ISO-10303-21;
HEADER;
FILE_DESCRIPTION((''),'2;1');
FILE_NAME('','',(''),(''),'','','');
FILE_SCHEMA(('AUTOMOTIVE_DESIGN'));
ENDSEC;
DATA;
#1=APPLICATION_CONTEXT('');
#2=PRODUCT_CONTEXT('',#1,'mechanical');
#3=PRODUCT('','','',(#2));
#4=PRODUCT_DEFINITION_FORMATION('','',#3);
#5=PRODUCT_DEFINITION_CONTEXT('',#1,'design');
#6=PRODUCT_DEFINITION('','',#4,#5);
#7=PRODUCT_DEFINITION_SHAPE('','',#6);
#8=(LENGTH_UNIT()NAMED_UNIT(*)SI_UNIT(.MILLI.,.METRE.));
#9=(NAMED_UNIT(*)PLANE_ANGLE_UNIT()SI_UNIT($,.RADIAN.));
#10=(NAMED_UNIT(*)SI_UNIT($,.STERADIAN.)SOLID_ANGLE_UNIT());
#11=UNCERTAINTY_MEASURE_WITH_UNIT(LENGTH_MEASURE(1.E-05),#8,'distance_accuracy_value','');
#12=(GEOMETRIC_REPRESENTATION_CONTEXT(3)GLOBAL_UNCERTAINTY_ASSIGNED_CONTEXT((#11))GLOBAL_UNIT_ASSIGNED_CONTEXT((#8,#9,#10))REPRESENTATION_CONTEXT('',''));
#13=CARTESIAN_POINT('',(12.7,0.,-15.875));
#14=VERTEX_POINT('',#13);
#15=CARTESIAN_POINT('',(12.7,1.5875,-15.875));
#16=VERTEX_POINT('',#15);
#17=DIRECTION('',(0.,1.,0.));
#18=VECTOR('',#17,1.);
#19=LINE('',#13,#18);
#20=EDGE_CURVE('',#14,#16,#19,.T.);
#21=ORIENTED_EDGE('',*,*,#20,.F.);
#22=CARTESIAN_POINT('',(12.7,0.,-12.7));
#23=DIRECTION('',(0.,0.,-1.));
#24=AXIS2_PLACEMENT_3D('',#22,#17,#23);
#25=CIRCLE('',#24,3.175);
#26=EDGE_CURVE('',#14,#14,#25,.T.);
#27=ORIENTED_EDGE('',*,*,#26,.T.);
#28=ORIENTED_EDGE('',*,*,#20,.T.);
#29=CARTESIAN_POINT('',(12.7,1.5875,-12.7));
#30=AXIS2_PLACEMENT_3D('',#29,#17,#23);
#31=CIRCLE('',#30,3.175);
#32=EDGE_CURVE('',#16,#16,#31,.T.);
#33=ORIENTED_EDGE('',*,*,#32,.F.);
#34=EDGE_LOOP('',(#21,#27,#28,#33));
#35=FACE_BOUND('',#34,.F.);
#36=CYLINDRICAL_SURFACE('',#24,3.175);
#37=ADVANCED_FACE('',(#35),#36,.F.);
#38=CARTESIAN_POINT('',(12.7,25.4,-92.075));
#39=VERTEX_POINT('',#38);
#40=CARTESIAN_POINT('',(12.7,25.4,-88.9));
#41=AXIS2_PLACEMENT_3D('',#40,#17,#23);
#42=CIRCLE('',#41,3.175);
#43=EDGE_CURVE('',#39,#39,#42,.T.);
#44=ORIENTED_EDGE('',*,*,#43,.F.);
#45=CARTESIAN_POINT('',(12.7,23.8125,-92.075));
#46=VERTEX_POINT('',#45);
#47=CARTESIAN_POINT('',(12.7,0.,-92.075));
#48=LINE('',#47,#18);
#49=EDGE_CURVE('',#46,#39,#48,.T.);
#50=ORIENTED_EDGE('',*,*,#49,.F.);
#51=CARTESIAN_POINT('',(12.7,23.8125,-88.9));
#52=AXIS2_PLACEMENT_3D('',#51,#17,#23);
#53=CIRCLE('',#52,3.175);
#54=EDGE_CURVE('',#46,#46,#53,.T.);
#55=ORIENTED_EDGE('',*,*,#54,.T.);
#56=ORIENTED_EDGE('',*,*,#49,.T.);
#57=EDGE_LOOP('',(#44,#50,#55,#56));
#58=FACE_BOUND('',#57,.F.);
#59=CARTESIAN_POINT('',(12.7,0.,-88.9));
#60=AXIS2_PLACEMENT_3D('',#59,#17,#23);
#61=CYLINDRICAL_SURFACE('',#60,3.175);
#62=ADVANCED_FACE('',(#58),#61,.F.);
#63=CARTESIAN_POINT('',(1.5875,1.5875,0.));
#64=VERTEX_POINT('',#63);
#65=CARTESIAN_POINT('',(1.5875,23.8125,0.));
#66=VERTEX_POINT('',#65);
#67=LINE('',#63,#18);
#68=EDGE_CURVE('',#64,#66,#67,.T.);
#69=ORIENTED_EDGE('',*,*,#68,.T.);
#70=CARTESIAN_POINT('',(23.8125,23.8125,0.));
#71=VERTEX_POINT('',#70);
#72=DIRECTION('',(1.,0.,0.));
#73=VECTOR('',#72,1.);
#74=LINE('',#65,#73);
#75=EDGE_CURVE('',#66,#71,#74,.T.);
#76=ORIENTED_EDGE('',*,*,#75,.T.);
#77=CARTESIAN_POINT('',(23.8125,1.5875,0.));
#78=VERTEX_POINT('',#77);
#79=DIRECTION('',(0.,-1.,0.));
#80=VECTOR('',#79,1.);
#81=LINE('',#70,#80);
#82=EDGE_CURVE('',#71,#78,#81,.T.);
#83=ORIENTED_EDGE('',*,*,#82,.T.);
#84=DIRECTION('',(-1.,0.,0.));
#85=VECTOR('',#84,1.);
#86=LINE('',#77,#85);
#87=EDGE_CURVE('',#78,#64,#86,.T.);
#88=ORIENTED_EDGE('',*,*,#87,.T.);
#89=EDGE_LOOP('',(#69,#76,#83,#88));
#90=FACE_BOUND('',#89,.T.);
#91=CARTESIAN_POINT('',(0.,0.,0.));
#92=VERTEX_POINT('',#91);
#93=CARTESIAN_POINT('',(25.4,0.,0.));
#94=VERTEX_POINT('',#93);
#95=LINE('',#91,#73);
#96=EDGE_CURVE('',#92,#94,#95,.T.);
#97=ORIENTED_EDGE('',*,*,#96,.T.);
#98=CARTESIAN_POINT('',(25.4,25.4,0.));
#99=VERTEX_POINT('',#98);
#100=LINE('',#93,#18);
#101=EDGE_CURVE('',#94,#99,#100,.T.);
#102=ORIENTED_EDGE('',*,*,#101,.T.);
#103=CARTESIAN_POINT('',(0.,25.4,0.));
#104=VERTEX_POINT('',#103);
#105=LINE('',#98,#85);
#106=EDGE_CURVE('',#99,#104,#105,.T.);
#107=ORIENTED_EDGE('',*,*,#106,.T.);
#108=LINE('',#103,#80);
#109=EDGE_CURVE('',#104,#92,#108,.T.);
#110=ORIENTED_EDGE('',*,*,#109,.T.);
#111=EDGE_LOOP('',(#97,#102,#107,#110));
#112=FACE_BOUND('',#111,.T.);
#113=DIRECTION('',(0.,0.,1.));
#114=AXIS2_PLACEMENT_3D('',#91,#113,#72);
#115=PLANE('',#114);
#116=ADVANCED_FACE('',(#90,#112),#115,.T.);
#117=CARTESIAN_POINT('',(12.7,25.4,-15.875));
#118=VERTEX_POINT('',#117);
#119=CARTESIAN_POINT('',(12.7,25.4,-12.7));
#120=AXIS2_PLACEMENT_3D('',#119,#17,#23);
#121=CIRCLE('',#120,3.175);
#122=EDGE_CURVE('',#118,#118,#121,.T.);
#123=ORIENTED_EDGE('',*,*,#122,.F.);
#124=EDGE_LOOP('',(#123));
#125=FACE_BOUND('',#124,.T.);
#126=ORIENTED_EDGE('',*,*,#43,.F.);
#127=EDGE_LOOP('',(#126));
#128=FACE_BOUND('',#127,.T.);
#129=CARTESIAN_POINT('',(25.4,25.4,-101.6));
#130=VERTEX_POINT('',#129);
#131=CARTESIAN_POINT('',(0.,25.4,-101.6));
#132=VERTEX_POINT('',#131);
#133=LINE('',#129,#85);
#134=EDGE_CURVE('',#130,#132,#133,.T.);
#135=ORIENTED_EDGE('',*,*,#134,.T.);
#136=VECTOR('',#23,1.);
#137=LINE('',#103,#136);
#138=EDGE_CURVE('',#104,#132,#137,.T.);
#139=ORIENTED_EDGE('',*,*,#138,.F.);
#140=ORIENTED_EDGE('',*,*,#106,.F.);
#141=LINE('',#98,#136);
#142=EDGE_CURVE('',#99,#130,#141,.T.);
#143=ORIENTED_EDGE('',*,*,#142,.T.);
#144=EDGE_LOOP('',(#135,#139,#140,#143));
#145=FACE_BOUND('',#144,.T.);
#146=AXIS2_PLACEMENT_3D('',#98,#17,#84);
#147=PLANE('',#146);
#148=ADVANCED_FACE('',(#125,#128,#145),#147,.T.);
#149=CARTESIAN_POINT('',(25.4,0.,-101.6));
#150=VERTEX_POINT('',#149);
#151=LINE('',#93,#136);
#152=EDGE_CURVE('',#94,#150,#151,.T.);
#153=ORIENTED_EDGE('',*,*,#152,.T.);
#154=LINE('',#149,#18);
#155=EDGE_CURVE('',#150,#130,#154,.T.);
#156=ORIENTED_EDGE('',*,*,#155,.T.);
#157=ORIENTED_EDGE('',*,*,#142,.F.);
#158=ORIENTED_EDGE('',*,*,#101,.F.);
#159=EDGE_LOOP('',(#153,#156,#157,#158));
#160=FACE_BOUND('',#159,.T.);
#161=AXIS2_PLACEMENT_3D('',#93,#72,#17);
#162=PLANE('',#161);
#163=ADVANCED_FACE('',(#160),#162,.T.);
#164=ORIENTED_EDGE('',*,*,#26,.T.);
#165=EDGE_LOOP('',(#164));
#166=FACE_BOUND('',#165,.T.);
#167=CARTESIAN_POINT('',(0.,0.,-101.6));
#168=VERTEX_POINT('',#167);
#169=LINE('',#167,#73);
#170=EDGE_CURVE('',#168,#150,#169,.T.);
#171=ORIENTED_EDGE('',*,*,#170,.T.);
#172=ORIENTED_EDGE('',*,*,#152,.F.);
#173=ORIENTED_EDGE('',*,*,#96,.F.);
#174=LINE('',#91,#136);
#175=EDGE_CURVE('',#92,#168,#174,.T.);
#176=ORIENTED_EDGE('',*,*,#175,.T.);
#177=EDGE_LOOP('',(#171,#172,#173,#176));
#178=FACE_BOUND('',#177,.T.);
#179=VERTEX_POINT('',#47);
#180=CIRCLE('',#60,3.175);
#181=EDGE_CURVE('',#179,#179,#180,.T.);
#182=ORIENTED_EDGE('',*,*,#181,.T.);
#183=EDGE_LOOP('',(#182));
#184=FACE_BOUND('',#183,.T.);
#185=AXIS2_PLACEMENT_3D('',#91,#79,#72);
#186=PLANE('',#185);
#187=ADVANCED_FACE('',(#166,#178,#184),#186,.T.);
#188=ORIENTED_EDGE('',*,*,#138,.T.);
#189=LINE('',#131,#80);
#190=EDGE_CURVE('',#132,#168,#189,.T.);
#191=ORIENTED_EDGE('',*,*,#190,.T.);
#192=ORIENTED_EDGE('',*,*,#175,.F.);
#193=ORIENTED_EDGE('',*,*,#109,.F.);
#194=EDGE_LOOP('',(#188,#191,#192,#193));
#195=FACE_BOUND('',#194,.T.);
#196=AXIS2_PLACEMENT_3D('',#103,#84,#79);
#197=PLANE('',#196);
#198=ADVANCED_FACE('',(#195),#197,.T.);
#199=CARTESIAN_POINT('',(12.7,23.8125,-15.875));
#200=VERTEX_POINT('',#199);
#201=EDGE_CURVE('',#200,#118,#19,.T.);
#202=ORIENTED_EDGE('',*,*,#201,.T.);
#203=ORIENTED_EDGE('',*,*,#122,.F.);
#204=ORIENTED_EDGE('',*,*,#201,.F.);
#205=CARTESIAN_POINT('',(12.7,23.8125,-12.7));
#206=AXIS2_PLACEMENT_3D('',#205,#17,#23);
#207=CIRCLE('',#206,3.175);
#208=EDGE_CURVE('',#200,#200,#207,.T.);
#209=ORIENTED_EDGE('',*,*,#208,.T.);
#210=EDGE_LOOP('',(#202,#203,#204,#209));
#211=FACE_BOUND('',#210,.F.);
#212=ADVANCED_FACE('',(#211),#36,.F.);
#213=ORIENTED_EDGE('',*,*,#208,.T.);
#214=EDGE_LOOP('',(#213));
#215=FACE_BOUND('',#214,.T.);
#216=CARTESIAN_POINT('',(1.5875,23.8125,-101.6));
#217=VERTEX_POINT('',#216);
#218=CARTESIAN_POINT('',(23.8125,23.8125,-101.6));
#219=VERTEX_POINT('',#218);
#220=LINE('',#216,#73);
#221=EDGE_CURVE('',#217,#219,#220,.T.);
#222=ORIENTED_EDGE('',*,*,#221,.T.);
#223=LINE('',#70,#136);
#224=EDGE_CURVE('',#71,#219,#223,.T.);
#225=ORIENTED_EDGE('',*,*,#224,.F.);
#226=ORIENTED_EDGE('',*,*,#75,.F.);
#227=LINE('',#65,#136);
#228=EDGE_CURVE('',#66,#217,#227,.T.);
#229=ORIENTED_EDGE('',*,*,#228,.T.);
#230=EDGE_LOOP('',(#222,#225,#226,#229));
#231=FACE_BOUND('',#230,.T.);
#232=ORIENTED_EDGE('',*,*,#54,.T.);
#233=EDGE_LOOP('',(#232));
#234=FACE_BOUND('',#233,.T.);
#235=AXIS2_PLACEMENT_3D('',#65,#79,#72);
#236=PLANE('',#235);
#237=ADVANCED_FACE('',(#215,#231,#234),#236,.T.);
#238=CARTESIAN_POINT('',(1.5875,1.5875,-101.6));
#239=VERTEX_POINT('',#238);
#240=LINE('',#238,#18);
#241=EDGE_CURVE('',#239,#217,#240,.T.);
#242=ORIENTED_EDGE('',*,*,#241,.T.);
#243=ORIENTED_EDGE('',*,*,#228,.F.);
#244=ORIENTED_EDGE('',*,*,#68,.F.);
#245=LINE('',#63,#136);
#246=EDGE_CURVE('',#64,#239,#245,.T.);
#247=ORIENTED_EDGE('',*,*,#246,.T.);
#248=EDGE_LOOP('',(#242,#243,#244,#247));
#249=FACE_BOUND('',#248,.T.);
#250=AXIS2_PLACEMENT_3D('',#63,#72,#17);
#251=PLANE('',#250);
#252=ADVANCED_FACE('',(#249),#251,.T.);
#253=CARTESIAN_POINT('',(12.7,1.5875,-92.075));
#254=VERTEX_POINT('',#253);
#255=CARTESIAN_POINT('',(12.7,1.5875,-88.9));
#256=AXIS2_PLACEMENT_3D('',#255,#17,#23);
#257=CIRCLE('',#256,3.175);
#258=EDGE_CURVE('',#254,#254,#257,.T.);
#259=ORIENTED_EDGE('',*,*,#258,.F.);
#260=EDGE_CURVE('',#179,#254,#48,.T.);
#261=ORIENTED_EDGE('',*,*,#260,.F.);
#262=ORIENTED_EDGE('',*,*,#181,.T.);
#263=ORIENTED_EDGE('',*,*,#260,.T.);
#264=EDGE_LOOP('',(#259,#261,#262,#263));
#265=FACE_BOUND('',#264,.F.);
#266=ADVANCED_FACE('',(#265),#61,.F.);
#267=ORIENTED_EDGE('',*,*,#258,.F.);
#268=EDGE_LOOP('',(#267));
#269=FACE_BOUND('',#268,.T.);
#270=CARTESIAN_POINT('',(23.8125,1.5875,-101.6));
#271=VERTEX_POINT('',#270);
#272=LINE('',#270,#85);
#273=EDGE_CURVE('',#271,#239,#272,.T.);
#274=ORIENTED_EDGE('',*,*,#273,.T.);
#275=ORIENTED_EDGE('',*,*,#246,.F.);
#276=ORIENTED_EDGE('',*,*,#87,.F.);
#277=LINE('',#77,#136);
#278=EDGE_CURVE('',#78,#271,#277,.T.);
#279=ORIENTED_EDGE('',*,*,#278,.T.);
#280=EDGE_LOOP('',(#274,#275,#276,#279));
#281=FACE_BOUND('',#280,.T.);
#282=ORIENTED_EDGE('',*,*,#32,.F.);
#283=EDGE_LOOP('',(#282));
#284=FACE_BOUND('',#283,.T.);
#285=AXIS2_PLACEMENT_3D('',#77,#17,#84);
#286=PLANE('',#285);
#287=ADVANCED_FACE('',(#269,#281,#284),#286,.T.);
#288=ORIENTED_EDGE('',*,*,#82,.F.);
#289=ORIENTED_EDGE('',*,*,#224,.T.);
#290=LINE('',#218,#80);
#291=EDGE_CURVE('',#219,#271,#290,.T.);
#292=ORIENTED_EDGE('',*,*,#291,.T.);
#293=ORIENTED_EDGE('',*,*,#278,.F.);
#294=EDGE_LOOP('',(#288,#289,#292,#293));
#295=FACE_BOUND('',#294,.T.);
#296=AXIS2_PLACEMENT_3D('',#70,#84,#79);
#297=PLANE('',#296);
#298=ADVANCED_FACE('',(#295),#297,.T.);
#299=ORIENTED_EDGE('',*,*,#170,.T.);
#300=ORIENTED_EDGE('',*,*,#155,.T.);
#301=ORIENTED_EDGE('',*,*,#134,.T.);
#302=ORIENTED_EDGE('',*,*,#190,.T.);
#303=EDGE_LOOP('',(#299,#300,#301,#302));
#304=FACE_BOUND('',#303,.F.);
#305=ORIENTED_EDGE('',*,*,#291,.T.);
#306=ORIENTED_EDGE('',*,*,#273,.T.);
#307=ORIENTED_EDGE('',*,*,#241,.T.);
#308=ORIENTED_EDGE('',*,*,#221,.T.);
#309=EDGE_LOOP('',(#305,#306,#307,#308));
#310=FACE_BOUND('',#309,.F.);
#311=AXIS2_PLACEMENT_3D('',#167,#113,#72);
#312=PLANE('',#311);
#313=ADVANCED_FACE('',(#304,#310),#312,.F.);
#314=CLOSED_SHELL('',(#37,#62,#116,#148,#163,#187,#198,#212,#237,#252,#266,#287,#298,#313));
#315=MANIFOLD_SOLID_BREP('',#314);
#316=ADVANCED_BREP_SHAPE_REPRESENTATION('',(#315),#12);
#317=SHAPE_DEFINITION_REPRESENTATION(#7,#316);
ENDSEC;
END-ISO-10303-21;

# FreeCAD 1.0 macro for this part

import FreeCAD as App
import Part
import Sketcher
Q = App.Units.Quantity

doc = App.newDocument("Part")
body = doc.addObject("PartDesign::Body", "Body")

# Sketch on XY plane
sketch1 = body.newObject("Sketcher::SketchObject", "Sketch")
sketch1.AttachmentSupport = (doc.getObject("XY_Plane"), [""])
sketch1.MapMode = "FlatFace"
sketch1.addGeometry([
    Part.LineSegment(App.Vector(0, 25, 0), App.Vector(0, 0, 0)),  # 0
    Part.LineSegment(App.Vector(0, 0, 0), App.Vector(25, 0, 0)),  # 1
    Part.LineSegment(App.Vector(25, 0, 0), App.Vector(25, 25, 0)),  # 2
    Part.LineSegment(App.Vector(25, 25, 0), App.Vector(0, 25, 0)),  # 3
    Part.LineSegment(App.Vector(2, 2, 0), App.Vector(2, 24, 0)),  # 4
    Part.LineSegment(App.Vector(2, 24, 0), App.Vector(24, 24, 0)),  # 5
    Part.LineSegment(App.Vector(24, 24, 0), App.Vector(24, 2, 0)),  # 6
    Part.LineSegment(App.Vector(24, 2, 0), App.Vector(2, 2, 0)),  # 7
], False)
sketch1.addConstraint([
    Sketcher.Constraint("Coincident", 0, 2, 1, 1),
    Sketcher.Constraint("Coincident", 1, 2, 2, 1),
    Sketcher.Constraint("Coincident", 2, 2, 3, 1),
    Sketcher.Constraint("Coincident", 3, 2, 0, 1),
    Sketcher.Constraint("Coincident", 4, 2, 5, 1),
    Sketcher.Constraint("Coincident", 5, 2, 6, 1),
    Sketcher.Constraint("Coincident", 6, 2, 7, 1),
    Sketcher.Constraint("Coincident", 7, 2, 4, 1),
    Sketcher.Constraint("Vertical", 0),
    Sketcher.Constraint("Horizontal", 1),
    Sketcher.Constraint("Vertical", 2),
    Sketcher.Constraint("Horizontal", 3),
    Sketcher.Constraint("Vertical", 4),
    Sketcher.Constraint("Horizontal", 5),
    Sketcher.Constraint("Vertical", 6),
    Sketcher.Constraint("Horizontal", 7),
    Sketcher.Constraint("Coincident", 0, 2, -1, 1),
    Sketcher.Constraint("Equal", 3, 0),
    Sketcher.Constraint("Equal", 7, 4),
    Sketcher.Constraint("DistanceX", 1, 1, 1, 2, Q("1 in")),
    Sketcher.Constraint("DistanceX", -1, 1, 4, 2, Q("0.0625 in")),
    Sketcher.Constraint("DistanceY", -1, 1, 6, 2, Q("0.0625 in")),
    Sketcher.Constraint("DistanceY", 4, 2, 3, 2, Q("0.0625 in")),
])
pad1 = body.newObject("PartDesign::Pad", "Pad")
pad1.Profile = sketch1
pad1.Length = Q("4 in")
pad1.Reversed = True

# Sketch on XZ plane
sketch2 = body.newObject("Sketcher::SketchObject", "Sketch001")
sketch2.AttachmentSupport = (doc.getObject("XZ_Plane"), [""])
sketch2.MapMode = "FlatFace"
sketch2.addGeometry([
    Part.Circle(App.Vector(12.7, -12.7, 0), App.Vector(0, 0, 1), 3.2),
    Part.Circle(App.Vector(12.7, -88.9, 0), App.Vector(0, 0, 1), 3.2),
], False)
sketch2.addConstraint([
    Sketcher.Constraint("Equal", 0, 1),
    Sketcher.Constraint("Vertical", 0, 3, 1, 3),
    Sketcher.Constraint("Diameter", 0, Q("0.25 in")),
    Sketcher.Constraint("DistanceY", 1, 3, 0, 3, Q("3 in")),
    Sketcher.Constraint("DistanceX", -1, 1, 0, 3, Q("0.5 in")),
    Sketcher.Constraint("DistanceY", 0, 3, -1, 1, Q("0.5 in")),
])
doc.recompute()
hole = body.newObject("PartDesign::Hole", "Hole")
hole.Profile = sketch2
hole.ThreadType = "None"
hole.Diameter = Q("0.25 in")
hole.DepthType = "Dimension"
hole.Depth = Q("1 in")
hole.DrillPoint = "Angled"
hole.DrillPointAngle = 118

doc.recompute()
